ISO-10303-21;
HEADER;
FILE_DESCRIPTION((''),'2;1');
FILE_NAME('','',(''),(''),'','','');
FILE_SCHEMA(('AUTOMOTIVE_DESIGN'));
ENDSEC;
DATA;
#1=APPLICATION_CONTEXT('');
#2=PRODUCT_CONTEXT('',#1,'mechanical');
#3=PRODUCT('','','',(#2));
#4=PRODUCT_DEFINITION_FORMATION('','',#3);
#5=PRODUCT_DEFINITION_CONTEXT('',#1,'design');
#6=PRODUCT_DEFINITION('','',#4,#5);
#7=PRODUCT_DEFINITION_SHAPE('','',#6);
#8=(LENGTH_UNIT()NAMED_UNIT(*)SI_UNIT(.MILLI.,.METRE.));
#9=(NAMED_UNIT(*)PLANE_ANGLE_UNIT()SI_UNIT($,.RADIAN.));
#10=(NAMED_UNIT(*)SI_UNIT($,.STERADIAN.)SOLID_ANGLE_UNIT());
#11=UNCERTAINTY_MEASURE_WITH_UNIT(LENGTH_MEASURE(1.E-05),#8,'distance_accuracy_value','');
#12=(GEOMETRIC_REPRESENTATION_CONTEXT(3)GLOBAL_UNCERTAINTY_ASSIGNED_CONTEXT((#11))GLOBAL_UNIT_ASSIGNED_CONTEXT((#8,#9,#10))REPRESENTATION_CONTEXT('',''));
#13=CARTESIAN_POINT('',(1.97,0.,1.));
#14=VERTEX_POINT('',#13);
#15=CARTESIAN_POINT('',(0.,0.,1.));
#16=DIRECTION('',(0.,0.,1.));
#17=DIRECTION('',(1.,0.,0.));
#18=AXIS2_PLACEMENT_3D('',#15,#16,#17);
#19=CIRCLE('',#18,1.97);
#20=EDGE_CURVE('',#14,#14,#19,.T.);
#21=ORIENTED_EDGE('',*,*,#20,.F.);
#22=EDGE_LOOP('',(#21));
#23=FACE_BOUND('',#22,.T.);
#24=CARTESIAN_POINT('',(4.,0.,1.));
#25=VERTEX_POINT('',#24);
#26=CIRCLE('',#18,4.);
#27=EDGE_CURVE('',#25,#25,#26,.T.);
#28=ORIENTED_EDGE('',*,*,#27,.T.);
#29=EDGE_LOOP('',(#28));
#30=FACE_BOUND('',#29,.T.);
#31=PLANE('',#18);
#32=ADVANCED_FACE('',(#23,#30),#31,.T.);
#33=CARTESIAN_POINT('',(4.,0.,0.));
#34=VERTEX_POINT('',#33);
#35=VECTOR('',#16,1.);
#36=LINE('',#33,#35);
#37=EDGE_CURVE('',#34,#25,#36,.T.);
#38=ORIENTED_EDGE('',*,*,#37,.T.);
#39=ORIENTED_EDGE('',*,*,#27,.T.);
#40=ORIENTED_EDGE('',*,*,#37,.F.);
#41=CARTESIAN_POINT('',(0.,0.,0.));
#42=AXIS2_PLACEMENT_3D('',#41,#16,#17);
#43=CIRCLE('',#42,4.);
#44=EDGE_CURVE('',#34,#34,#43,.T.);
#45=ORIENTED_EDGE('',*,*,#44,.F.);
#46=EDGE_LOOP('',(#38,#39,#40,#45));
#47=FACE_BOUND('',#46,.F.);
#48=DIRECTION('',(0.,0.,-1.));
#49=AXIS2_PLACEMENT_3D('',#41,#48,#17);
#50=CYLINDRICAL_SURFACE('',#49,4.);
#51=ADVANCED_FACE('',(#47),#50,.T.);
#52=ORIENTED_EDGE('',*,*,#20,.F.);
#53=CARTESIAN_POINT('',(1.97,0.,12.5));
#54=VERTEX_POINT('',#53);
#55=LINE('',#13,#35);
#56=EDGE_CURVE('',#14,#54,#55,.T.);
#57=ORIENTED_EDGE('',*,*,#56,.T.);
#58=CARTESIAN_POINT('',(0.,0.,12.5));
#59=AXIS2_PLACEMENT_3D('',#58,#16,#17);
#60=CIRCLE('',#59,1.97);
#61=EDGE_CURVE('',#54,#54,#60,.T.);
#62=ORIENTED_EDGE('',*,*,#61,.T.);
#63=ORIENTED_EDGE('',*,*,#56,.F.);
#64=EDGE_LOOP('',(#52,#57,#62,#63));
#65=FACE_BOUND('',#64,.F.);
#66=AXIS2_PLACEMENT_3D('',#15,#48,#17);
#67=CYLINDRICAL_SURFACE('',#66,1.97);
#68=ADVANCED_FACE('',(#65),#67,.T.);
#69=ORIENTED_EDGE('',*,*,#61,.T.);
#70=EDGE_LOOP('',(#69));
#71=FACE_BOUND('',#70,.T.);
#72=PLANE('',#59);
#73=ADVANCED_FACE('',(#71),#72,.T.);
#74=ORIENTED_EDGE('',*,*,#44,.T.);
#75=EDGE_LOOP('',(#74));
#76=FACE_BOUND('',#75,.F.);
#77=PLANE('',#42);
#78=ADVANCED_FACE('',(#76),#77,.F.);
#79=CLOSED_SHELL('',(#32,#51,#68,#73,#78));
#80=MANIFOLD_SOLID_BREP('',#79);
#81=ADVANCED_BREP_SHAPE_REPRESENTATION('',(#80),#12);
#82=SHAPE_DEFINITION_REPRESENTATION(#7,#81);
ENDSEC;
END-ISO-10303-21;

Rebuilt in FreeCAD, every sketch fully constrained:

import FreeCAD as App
import Part
import Sketcher
from FreeCAD import Vector
Q = App.Units.Quantity

doc = App.newDocument("Part")
body = doc.addObject("PartDesign::Body", "Body")

sketch1 = body.newObject("Sketcher::SketchObject", "Sketch")
sketch1.AttachmentSupport = (doc.getObject("XY_Plane"), [""])
sketch1.MapMode = "FlatFace"
sketch1.AttachmentOffset = App.Placement(Vector(0, 0, 1), App.Rotation())
sketch1.addGeometry(Part.Circle(Vector(0, 0, 0), Vector(0, 0, 1), 1.97), False)
sketch1.addConstraint([
    Sketcher.Constraint("Coincident", 0, 3, -1, 1),
    Sketcher.Constraint("Diameter", 0, Q("3.94 mm")),
])
pad1 = body.newObject("PartDesign::Pad", "Pad")
pad1.Profile = sketch1
pad1.Length = 11.5
body2 = doc.addObject("PartDesign::Body", "Body001")

sketch2 = body2.newObject("Sketcher::SketchObject", "Sketch001")
sketch2.AttachmentSupport = (doc.getObject("XY_Plane001"), [""])
sketch2.MapMode = "FlatFace"
sketch2.addGeometry(Part.Circle(Vector(0, 0, 0), Vector(0, 0, 1), 4), False)
sketch2.addConstraint([
    Sketcher.Constraint("Coincident", 0, 3, -1, 1),
    Sketcher.Constraint("Diameter", 0, Q("8 mm")),
])
pad2 = body2.newObject("PartDesign::Pad", "Pad001")
pad2.Profile = sketch2
pad2.Length = 1
doc.recompute()

boolean = body2.newObject("PartDesign::Boolean", "Boolean")
boolean.Type = "Fuse"
boolean.addObjects([body])

doc.recompute()
